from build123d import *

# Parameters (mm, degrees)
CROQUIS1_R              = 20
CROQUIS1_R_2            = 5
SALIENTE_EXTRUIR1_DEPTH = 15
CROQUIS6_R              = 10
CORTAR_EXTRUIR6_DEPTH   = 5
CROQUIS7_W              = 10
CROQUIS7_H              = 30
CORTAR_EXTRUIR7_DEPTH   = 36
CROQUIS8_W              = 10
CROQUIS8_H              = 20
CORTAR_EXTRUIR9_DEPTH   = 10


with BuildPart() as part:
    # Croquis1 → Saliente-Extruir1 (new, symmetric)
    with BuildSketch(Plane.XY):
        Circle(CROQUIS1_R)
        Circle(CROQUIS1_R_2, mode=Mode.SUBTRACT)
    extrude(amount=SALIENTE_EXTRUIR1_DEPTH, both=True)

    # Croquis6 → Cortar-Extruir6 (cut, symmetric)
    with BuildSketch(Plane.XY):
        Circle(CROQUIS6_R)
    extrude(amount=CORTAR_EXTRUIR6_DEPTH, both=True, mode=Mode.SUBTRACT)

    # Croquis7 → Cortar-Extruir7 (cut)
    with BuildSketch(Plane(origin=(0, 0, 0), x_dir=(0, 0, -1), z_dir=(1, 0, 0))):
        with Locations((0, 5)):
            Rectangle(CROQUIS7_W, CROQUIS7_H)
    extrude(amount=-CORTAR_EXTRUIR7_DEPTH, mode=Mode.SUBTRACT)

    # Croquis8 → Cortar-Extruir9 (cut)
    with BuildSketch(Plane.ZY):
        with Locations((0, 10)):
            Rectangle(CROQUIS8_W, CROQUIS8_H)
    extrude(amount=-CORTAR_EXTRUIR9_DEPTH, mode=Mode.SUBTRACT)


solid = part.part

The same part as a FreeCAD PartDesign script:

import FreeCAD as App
import Part
import Sketcher
from FreeCAD import Vector

doc = App.newDocument("Part")
body = doc.addObject("PartDesign::Body", "Body")

# Sketch on XY plane
sketch1 = body.newObject("Sketcher::SketchObject", "Sketch")
sketch1.AttachmentSupport = (doc.getObject("XY_Plane"), [""])
sketch1.MapMode = "FlatFace"
sketch1.addGeometry([
    Part.Circle(Vector(0, 0, 0), Vector(0, 0, 1), 20),
    Part.Circle(Vector(0, 0, 0), Vector(0, 0, 1), 5),
], False)
sketch1.addConstraint([
    Sketcher.Constraint("Coincident", 0, 3, -1, 1),
    Sketcher.Constraint("Coincident", 1, 3, -1, 1),
    Sketcher.Constraint("Diameter", 0, 40.0),
    Sketcher.Constraint("Diameter", 1, 10.0),
])
pad1 = body.newObject("PartDesign::Pad", "Pad")
pad1.Profile = sketch1
pad1.Length = 30
pad1.Midplane = True

# Sketch on XY plane
sketch2 = body.newObject("Sketcher::SketchObject", "Sketch001")
sketch2.AttachmentSupport = (doc.getObject("XY_Plane"), [""])
sketch2.MapMode = "FlatFace"
sketch2.addGeometry(Part.Circle(Vector(0, 0, 0), Vector(0, 0, 1), 10), False)
sketch2.addConstraint([
    Sketcher.Constraint("Coincident", 0, 3, -1, 1),
    Sketcher.Constraint("Diameter", 0, 20.0),
])
pocket1 = body.newObject("PartDesign::Pocket", "Pocket")
pocket1.Profile = sketch2
pocket1.Length = 10
pocket1.Midplane = True

# Sketch on YZ plane
sketch3 = body.newObject("Sketcher::SketchObject", "Sketch002")
sketch3.AttachmentSupport = (doc.getObject("YZ_Plane"), [""])
sketch3.MapMode = "FlatFace"
sketch3.addGeometry([
    Part.LineSegment(Vector(20, 5, 0), Vector(-10, 5, 0)),
    Part.LineSegment(Vector(-10, 5, 0), Vector(-10, -5, 0)),
    Part.LineSegment(Vector(-10, -5, 0), Vector(20, -5, 0)),
    Part.LineSegment(Vector(20, -5, 0), Vector(20, 5, 0)),
], False)
sketch3.addConstraint([
    Sketcher.Constraint("Coincident", 0, 2, 1, 1),
    Sketcher.Constraint("Coincident", 1, 2, 2, 1),
    Sketcher.Constraint("Coincident", 2, 2, 3, 1),
    Sketcher.Constraint("Coincident", 3, 2, 0, 1),
    Sketcher.Constraint("Horizontal", 0),
    Sketcher.Constraint("Vertical", 1),
    Sketcher.Constraint("Horizontal", 2),
    Sketcher.Constraint("Vertical", 3),
    Sketcher.Constraint("DistanceX", 0, 2, 0, 1, 30.0),
    Sketcher.Constraint("DistanceY", 1, 2, 1, 1, 10.0),
    Sketcher.Constraint("DistanceX", 0, 2, -1, 1, 10.0),
    Sketcher.Constraint("DistanceY", -1, 1, 0, 2, 5.0),
])
pocket2 = body.newObject("PartDesign::Pocket", "Pocket001")
pocket2.Profile = sketch3
pocket2.Length = 36

# Sketch on YZ plane
sketch4 = body.newObject("Sketcher::SketchObject", "Sketch003")
sketch4.AttachmentSupport = (doc.getObject("YZ_Plane"), [""])
sketch4.MapMode = "FlatFace"
sketch4.addGeometry([
    Part.LineSegment(Vector(20, -5, 0), Vector(0, -5, 0)),
    Part.LineSegment(Vector(0, -5, 0), Vector(0, 5, 0)),
    Part.LineSegment(Vector(0, 5, 0), Vector(20, 5, 0)),
    Part.LineSegment(Vector(20, 5, 0), Vector(20, -5, 0)),
], False)
sketch4.addConstraint([
    Sketcher.Constraint("Coincident", 0, 2, 1, 1),
    Sketcher.Constraint("Coincident", 1, 2, 2, 1),
    Sketcher.Constraint("Coincident", 2, 2, 3, 1),
    Sketcher.Constraint("Coincident", 3, 2, 0, 1),
    Sketcher.Constraint("Horizontal", 0),
    Sketcher.Constraint("Vertical", 1),
    Sketcher.Constraint("Horizontal", 2),
    Sketcher.Constraint("Vertical", 3),
    Sketcher.Constraint("Symmetric", 0, 2, 1, 2, -1, 1),
    Sketcher.Constraint("DistanceX", 0, 2, 0, 1, 20.0),
    Sketcher.Constraint("DistanceY", 1, 1, 1, 2, 10.0),
])
pocket3 = body.newObject("PartDesign::Pocket", "Pocket002")
pocket3.Profile = sketch4
pocket3.Length = 10
pocket3.Reversed = True

doc.recompute()
